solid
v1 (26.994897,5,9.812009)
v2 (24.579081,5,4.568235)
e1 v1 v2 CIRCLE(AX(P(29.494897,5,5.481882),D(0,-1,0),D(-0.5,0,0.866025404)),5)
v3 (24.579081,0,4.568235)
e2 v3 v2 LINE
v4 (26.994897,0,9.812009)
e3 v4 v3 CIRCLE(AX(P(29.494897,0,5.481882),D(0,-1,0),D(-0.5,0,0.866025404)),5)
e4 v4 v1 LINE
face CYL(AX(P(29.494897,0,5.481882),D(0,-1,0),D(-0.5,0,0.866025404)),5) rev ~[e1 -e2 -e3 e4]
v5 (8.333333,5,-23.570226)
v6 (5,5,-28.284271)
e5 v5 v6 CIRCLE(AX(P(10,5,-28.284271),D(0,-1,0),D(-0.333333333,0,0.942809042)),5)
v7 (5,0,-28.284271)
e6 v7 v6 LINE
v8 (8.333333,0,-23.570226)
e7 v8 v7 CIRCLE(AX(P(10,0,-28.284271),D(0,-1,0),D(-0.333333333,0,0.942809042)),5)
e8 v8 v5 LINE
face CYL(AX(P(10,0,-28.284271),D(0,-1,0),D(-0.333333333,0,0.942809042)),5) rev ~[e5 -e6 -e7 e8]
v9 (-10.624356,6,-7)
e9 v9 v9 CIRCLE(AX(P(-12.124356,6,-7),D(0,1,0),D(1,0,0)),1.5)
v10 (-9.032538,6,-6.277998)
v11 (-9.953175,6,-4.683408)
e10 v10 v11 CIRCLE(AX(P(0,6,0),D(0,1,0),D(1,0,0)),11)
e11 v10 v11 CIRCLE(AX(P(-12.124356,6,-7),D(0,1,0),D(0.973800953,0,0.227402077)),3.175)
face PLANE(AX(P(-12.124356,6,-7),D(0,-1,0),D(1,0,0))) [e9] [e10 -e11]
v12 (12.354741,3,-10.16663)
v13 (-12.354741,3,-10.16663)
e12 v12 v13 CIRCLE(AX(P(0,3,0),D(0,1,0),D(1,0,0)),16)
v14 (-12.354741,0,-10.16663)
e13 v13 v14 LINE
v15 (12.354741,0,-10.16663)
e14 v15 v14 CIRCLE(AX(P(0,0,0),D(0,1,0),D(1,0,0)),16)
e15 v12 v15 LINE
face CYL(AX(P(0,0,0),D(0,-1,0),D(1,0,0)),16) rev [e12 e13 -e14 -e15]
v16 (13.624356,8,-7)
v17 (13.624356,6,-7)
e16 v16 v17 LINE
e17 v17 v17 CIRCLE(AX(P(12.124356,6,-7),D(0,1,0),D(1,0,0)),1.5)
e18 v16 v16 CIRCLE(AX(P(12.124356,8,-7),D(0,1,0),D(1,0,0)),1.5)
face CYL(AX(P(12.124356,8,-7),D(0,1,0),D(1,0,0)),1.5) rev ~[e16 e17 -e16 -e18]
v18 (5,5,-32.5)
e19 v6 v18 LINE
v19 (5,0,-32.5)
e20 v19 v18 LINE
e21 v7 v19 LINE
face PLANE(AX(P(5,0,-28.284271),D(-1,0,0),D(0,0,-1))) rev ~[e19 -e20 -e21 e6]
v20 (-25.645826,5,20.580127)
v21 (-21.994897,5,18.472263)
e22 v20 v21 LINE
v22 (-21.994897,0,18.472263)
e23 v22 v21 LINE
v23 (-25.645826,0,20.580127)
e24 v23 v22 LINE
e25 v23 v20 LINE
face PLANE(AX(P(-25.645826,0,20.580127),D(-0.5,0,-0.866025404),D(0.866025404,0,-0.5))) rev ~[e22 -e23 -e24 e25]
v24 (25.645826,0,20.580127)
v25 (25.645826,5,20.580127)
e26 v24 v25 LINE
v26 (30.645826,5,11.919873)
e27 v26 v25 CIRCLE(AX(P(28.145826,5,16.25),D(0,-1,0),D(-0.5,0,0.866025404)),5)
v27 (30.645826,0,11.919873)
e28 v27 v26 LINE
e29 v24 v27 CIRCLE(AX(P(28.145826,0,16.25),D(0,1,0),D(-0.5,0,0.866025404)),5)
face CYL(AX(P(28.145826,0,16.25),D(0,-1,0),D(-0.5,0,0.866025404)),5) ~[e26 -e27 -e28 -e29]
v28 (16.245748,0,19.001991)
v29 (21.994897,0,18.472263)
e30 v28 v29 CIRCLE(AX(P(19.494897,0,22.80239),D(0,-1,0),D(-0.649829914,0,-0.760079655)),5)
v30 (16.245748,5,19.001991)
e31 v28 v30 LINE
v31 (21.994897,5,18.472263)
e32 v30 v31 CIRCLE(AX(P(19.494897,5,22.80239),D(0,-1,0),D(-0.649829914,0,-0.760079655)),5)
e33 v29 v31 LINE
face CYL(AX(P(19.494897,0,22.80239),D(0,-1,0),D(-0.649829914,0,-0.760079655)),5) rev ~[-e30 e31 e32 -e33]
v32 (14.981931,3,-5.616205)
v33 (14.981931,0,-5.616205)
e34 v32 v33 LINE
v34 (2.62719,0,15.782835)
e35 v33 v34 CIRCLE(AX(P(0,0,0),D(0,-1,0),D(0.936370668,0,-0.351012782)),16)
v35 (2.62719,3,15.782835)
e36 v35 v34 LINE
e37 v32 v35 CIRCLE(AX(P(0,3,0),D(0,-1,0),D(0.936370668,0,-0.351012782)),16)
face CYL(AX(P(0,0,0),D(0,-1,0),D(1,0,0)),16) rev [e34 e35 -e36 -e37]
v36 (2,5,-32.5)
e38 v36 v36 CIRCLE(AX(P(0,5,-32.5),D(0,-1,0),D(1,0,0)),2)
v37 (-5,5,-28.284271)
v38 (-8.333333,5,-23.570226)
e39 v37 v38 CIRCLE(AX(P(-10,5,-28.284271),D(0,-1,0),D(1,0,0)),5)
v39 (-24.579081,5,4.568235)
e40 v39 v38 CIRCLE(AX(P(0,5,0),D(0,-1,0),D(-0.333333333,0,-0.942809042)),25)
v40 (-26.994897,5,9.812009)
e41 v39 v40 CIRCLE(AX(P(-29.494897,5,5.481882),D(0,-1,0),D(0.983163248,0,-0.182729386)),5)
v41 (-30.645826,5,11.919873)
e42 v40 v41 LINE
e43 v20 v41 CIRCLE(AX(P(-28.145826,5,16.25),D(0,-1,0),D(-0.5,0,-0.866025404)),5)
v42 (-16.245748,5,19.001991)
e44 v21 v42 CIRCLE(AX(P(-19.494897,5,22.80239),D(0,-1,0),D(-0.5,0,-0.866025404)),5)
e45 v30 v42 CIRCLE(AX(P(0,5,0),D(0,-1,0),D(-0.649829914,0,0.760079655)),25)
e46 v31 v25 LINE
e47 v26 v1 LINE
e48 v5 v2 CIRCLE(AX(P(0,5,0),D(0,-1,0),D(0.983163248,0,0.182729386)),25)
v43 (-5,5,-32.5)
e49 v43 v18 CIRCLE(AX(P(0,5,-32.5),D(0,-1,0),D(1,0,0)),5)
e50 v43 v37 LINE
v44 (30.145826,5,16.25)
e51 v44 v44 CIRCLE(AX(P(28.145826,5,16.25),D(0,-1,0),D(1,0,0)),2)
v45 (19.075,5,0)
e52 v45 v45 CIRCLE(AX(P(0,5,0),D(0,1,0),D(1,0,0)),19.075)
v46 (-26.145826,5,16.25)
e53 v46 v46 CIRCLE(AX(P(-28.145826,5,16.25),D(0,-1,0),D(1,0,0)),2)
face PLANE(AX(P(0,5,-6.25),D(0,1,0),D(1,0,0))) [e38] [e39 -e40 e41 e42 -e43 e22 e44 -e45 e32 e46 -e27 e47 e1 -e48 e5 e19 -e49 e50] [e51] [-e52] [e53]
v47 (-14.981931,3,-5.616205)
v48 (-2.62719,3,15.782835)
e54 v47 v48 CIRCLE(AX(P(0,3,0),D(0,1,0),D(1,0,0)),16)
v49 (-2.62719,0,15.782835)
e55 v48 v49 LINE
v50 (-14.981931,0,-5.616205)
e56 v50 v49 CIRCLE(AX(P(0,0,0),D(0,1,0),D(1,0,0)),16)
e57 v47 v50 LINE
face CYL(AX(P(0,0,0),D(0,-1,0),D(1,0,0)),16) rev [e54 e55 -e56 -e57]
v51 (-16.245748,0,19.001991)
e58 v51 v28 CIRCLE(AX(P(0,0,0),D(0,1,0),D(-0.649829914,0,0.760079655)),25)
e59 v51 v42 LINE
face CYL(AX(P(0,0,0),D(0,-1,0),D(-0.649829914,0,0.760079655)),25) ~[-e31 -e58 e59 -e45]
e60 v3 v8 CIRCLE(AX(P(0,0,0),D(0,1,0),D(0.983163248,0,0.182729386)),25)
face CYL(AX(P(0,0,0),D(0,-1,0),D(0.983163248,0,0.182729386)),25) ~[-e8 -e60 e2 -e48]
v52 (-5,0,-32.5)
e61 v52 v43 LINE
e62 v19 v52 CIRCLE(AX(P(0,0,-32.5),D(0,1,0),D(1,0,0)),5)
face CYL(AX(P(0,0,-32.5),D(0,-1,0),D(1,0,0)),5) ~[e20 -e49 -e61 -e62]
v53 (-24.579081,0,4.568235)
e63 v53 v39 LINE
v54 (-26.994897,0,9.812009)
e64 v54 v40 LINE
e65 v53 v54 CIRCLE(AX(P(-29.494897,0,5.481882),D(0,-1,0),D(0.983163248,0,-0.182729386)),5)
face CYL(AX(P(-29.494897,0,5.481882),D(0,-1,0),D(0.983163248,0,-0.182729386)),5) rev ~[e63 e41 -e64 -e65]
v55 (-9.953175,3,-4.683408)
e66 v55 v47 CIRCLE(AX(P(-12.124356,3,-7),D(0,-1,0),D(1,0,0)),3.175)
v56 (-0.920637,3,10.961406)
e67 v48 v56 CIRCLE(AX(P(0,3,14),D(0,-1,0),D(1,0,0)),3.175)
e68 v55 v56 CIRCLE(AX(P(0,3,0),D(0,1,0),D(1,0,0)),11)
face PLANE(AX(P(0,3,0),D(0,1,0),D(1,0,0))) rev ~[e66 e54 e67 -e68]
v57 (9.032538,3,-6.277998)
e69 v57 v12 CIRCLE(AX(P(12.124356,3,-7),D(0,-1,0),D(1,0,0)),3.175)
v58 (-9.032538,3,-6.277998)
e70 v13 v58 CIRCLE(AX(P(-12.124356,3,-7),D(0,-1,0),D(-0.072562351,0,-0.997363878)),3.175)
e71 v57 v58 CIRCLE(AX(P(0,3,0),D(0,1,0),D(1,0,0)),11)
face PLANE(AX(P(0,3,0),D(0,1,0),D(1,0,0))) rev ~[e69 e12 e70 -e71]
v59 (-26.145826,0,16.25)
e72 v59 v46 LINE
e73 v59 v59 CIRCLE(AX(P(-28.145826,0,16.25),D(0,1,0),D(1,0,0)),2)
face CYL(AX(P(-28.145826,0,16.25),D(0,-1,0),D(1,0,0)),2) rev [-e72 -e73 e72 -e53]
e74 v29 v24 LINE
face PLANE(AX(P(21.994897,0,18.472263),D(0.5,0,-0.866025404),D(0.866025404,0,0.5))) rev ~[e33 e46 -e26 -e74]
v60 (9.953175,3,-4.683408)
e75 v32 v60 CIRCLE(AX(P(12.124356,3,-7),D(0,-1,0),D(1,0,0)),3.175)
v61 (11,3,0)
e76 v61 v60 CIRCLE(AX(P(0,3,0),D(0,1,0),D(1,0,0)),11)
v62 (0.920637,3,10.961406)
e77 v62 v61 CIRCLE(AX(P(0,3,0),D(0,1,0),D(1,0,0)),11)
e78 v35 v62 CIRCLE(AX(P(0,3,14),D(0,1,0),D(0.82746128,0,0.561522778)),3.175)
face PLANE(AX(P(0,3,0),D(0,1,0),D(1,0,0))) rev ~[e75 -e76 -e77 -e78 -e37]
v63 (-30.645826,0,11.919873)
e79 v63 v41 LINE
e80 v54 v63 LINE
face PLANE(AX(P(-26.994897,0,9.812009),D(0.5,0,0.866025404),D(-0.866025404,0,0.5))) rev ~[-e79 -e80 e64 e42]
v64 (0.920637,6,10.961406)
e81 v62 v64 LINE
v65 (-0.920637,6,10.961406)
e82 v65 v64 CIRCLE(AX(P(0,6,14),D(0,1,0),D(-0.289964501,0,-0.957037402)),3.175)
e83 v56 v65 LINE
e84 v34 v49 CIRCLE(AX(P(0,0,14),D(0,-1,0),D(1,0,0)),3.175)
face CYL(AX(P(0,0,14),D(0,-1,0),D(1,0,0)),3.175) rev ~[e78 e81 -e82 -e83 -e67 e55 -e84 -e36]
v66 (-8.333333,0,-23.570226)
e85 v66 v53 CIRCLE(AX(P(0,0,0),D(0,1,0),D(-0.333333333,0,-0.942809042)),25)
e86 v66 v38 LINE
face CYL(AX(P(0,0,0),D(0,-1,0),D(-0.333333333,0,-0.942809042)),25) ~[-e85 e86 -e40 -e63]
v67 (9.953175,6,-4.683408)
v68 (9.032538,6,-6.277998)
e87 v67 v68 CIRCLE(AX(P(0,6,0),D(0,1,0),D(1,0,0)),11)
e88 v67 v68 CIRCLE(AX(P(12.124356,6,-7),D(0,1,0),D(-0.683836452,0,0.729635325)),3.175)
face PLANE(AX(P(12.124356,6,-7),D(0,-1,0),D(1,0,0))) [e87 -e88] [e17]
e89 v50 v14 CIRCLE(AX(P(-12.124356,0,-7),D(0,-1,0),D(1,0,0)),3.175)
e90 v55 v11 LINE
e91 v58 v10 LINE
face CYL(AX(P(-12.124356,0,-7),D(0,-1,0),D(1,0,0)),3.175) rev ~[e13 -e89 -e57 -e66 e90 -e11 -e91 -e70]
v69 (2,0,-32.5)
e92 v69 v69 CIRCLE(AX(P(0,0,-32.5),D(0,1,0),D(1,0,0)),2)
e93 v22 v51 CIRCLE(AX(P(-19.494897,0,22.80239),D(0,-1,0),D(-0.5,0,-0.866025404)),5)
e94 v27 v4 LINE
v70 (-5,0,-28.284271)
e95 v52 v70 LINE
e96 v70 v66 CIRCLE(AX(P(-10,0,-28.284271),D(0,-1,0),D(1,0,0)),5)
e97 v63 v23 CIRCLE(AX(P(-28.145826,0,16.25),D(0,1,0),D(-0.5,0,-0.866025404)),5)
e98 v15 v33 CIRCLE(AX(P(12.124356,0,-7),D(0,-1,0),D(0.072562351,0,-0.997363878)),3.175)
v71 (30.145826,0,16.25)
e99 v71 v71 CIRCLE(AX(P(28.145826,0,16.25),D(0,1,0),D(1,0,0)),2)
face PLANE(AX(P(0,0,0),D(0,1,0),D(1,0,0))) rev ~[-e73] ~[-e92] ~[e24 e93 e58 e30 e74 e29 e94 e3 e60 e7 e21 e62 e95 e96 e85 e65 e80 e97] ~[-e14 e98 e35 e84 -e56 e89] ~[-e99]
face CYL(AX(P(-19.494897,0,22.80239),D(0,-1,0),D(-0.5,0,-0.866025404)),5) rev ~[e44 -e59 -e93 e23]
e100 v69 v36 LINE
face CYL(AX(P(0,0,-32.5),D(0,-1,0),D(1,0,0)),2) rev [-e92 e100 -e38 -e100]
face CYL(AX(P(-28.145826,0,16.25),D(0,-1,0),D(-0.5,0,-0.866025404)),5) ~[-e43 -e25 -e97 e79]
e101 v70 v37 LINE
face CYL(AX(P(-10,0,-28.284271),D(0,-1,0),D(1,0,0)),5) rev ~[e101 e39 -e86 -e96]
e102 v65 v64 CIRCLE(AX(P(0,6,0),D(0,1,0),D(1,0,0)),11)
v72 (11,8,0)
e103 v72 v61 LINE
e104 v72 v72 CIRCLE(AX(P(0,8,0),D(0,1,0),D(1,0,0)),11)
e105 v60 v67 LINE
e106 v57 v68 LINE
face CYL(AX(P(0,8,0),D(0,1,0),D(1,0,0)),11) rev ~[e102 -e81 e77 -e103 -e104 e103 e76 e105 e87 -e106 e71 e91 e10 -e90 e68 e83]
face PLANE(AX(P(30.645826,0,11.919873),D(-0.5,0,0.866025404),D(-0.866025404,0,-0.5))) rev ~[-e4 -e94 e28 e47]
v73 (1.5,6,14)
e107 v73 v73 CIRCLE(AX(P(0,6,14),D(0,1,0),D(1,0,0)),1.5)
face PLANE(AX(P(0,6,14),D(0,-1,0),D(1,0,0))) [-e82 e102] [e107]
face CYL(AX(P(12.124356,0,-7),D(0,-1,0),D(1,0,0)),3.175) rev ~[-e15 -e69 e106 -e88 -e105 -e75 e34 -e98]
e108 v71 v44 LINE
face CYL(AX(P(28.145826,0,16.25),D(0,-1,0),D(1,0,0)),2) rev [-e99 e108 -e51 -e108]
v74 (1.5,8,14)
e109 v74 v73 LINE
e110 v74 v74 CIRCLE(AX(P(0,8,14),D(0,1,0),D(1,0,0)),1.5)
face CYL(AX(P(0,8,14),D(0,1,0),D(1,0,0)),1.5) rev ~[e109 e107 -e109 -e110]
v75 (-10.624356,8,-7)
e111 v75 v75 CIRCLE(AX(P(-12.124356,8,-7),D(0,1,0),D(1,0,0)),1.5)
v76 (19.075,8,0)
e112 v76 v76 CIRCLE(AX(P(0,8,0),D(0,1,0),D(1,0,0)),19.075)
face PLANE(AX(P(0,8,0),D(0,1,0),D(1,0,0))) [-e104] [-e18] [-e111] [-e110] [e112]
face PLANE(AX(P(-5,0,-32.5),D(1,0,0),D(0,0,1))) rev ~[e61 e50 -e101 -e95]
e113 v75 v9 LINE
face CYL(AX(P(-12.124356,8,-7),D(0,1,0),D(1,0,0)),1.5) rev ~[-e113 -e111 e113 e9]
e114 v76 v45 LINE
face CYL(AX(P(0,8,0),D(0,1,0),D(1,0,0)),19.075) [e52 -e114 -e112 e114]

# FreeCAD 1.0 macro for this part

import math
import FreeCAD as App
import Part
import Sketcher
Q = App.Units.Quantity


def add_polygon(sketch, points):
    """Adds a closed chain of lines whose ends are joined by coincident constraints."""
    first, n = sketch.GeometryCount, len(points)
    for a, b in zip(points, points[1:] + points[:1]):
        sketch.addGeometry(Part.LineSegment(App.Vector(*a, 0), App.Vector(*b, 0)), False)
    for i in range(n):
        sketch.addConstraint(Sketcher.Constraint("Coincident", first + i, 2, first + (i + 1) % n, 1))

doc = App.newDocument("Part")
body = doc.addObject("PartDesign::Body", "Body")

# Sketch on XZ plane
sketch1 = doc.addObject("Sketcher::SketchObject", "Sketch")
body.addObject(sketch1)
sketch1.AttachmentSupport = (doc.XZ_Plane, [""])
sketch1.MapMode = "FlatFace"
sketch1.addGeometry(Part.LineSegment(App.Vector(30.6, 11.9, 0), App.Vector(27, 9.8, 0)), False)
sketch1.addGeometry(Part.ArcOfCircle(Part.Circle(App.Vector(29.5, 5.5, 0), App.Vector(0, 0, 1), 5), math.radians(120), math.radians(191)), False)
sketch1.addGeometry(Part.ArcOfCircle(Part.Circle(App.Vector(0, 0, 0), App.Vector(0, 0, 1), 25), math.radians(-71), math.radians(11)), False)
sketch1.addGeometry(Part.ArcOfCircle(Part.Circle(App.Vector(10, -28.3, 0), App.Vector(0, 0, 1), 5), math.radians(109), math.radians(180)), False)
sketch1.addGeometry(Part.LineSegment(App.Vector(5, -28.3, 0), App.Vector(5, -32.5, 0)), False)
sketch1.addGeometry(Part.ArcOfCircle(Part.Circle(App.Vector(0, -32.5, 0), App.Vector(0, 0, 1), 5), math.radians(180), math.radians(360)), False)
sketch1.addGeometry(Part.LineSegment(App.Vector(-5, -32.5, 0), App.Vector(-5, -28.3, 0)), False)
sketch1.addGeometry(Part.ArcOfCircle(Part.Circle(App.Vector(-10, -28.3, 0), App.Vector(0, 0, 1), 5), math.radians(0), math.radians(71)), False)
sketch1.addGeometry(Part.ArcOfCircle(Part.Circle(App.Vector(0, 0, 0), App.Vector(0, 0, 1), 25), math.radians(169), math.radians(251)), False)
sketch1.addGeometry(Part.ArcOfCircle(Part.Circle(App.Vector(-29.5, 5.5, 0), App.Vector(0, 0, 1), 5), math.radians(-11), math.radians(60)), False)
sketch1.addGeometry(Part.LineSegment(App.Vector(-27, 9.8, 0), App.Vector(-30.6, 11.9, 0)), False)
sketch1.addGeometry(Part.ArcOfCircle(Part.Circle(App.Vector(-28.1, 16.2, 0), App.Vector(0, 0, 1), 5), math.radians(60), math.radians(240)), False)
sketch1.addGeometry(Part.LineSegment(App.Vector(-25.6, 20.6, 0), App.Vector(-22, 18.5, 0)), False)
sketch1.addGeometry(Part.ArcOfCircle(Part.Circle(App.Vector(-19.5, 22.8, 0), App.Vector(0, 0, 1), 5), math.radians(-120), math.radians(-49)), False)
sketch1.addGeometry(Part.ArcOfCircle(Part.Circle(App.Vector(0, 0, 0), App.Vector(0, 0, 1), 25), math.radians(49), math.radians(131)), False)
sketch1.addGeometry(Part.ArcOfCircle(Part.Circle(App.Vector(19.5, 22.8, 0), App.Vector(0, 0, 1), 5), math.radians(-131), math.radians(-60)), False)
sketch1.addGeometry(Part.LineSegment(App.Vector(22, 18.5, 0), App.Vector(25.6, 20.6, 0)), False)
sketch1.addGeometry(Part.ArcOfCircle(Part.Circle(App.Vector(28.1, 16.2, 0), App.Vector(0, 0, 1), 5), math.radians(-60), math.radians(120)), False)
sketch1.addGeometry(Part.Circle(App.Vector(-28.1, 16.2, 0), App.Vector(0, 0, 1), 2), False)
sketch1.addGeometry(Part.Circle(App.Vector(28.1, 16.2, 0), App.Vector(0, 0, 1), 2), False)
sketch1.addGeometry(Part.Circle(App.Vector(0, 0, 0), App.Vector(0, 0, 1), 16), False)
sketch1.addGeometry(Part.Circle(App.Vector(0, -32.5, 0), App.Vector(0, 0, 1), 2), False)
sketch1.addConstraint(Sketcher.Constraint("Tangent", 0, 2, 1, 1))
sketch1.addConstraint(Sketcher.Constraint("Tangent", 1, 2, 2, 2))
sketch1.addConstraint(Sketcher.Constraint("Tangent", 2, 1, 3, 1))
sketch1.addConstraint(Sketcher.Constraint("Tangent", 3, 2, 4, 1))
sketch1.addConstraint(Sketcher.Constraint("Tangent", 4, 2, 5, 2))
sketch1.addConstraint(Sketcher.Constraint("Tangent", 5, 1, 6, 1))
sketch1.addConstraint(Sketcher.Constraint("Tangent", 6, 2, 7, 1))
sketch1.addConstraint(Sketcher.Constraint("Tangent", 7, 2, 8, 2))
sketch1.addConstraint(Sketcher.Constraint("Tangent", 8, 1, 9, 1))
sketch1.addConstraint(Sketcher.Constraint("Tangent", 9, 2, 10, 1))
sketch1.addConstraint(Sketcher.Constraint("Tangent", 10, 2, 11, 2))
sketch1.addConstraint(Sketcher.Constraint("Tangent", 11, 1, 12, 1))
sketch1.addConstraint(Sketcher.Constraint("Tangent", 12, 2, 13, 1))
sketch1.addConstraint(Sketcher.Constraint("Tangent", 13, 2, 14, 2))
sketch1.addConstraint(Sketcher.Constraint("Tangent", 14, 1, 15, 1))
sketch1.addConstraint(Sketcher.Constraint("Tangent", 15, 2, 16, 1))
sketch1.addConstraint(Sketcher.Constraint("Tangent", 16, 2, 17, 2))
sketch1.addConstraint(Sketcher.Constraint("Tangent", 17, 1, 0, 1))
sketch1.addConstraint(Sketcher.Constraint("Vertical", 4))
sketch1.addConstraint(Sketcher.Constraint("Vertical", 6))
sketch1.addConstraint(Sketcher.Constraint("Coincident", 2, 3, -1, 1))
sketch1.addConstraint(Sketcher.Constraint("Coincident", 8, 3, -1, 1))
sketch1.addConstraint(Sketcher.Constraint("Coincident", 14, 3, -1, 1))
sketch1.addConstraint(Sketcher.Constraint("Coincident", 20, 3, -1, 1))
sketch1.addConstraint(Sketcher.Constraint("Coincident", 18, 3, 11, 3))
sketch1.addConstraint(Sketcher.Constraint("Coincident", 19, 3, 17, 3))
sketch1.addConstraint(Sketcher.Constraint("Coincident", 21, 3, 5, 3))
sketch1.addConstraint(Sketcher.Constraint("Equal", 1, 3))
sketch1.addConstraint(Sketcher.Constraint("Equal", 3, 5))
sketch1.addConstraint(Sketcher.Constraint("Equal", 5, 7))
sketch1.addConstraint(Sketcher.Constraint("Equal", 2, 8))
sketch1.addConstraint(Sketcher.Constraint("Equal", 7, 9))
sketch1.addConstraint(Sketcher.Constraint("Equal", 9, 11))
sketch1.addConstraint(Sketcher.Constraint("Equal", 11, 13))
sketch1.addConstraint(Sketcher.Constraint("Equal", 8, 14))
sketch1.addConstraint(Sketcher.Constraint("Equal", 13, 15))
sketch1.addConstraint(Sketcher.Constraint("Equal", 15, 17))
sketch1.addConstraint(Sketcher.Constraint("Equal", 18, 19))
sketch1.addConstraint(Sketcher.Constraint("Equal", 19, 21))
sketch1.addConstraint(Sketcher.Constraint("Symmetric", 11, 3, 17, 3, -2))
sketch1.addConstraint(Sketcher.Constraint("PointOnObject", 5, 3, -2))
sketch1.addConstraint(Sketcher.Constraint("Parallel", 10, 12))
sketch1.addConstraint(Sketcher.Constraint("Parallel", 0, 16))
sketch1.addConstraint(Sketcher.Constraint("Horizontal", 1, 3, 9, 3))
sketch1.addConstraint(Sketcher.Constraint("Equal", 10, 12))
sketch1.addConstraint(Sketcher.Constraint("Diameter", 18, 4.0))
sketch1.addConstraint(Sketcher.Constraint("Diameter", 20, 32.0))
sketch1.addConstraint(Sketcher.Constraint("Radius", 1, 5.0))
sketch1.addConstraint(Sketcher.Constraint("Radius", 2, 25.0))
sketch1.addConstraint(Sketcher.Constraint("Angle", 0, Q("-150 deg")))
sketch1.addConstraint(Sketcher.Constraint("DistanceY", 5, 3, -1, 1, 32.5))
sketch1.addConstraint(Sketcher.Constraint("DistanceY", -1, 1, 11, 3, 16.25))
pad1 = doc.addObject("PartDesign::Pad", "Pad")
body.addObject(pad1)
pad1.Profile = sketch1
pad1.Length = 8
pad1.Reversed = True

# Sketch on XZ plane
sketch2 = doc.addObject("Sketcher::SketchObject", "Sketch001")
body.addObject(sketch2)
sketch2.AttachmentSupport = (doc.XZ_Plane, [""])
sketch2.MapMode = "FlatFace"
sketch2.AttachmentOffset = App.Placement(App.Vector(0, 0, -8), App.Rotation())
sketch2.addGeometry(Part.Circle(App.Vector(0, 0, 0), App.Vector(0, 0, 1), 16), False)
sketch2.addGeometry(Part.Circle(App.Vector(0, 0, 0), App.Vector(0, 0, 1), 11), False)
sketch2.addConstraint(Sketcher.Constraint("Coincident", 0, 3, -1, 1))
sketch2.addConstraint(Sketcher.Constraint("Coincident", 1, 3, -1, 1))
sketch2.addConstraint(Sketcher.Constraint("Diameter", 0, 32.0))
sketch2.addConstraint(Sketcher.Constraint("Diameter", 1, 22.0))
pad2 = doc.addObject("PartDesign::Pad", "Pad001")
body.addObject(pad2)
pad2.Profile = sketch2
pad2.Length = 5

# Sketch on XZ plane
sketch3 = doc.addObject("Sketcher::SketchObject", "Sketch002")
body.addObject(sketch3)
sketch3.AttachmentSupport = (doc.XZ_Plane, [""])
sketch3.MapMode = "FlatFace"
sketch3.AttachmentOffset = App.Placement(App.Vector(0, 0, -8), App.Rotation())
sketch3.addGeometry(Part.Circle(App.Vector(0, 14, 0), App.Vector(0, 0, 1), 1.5), False)
sketch3.addGeometry(Part.Circle(App.Vector(-12.1, -7, 0), App.Vector(0, 0, 1), 1.5), False)
sketch3.addGeometry(Part.Circle(App.Vector(12.1, -7, 0), App.Vector(0, 0, 1), 1.5), False)
sketch3.addConstraint(Sketcher.Constraint("Equal", 0, 1))
sketch3.addConstraint(Sketcher.Constraint("Equal", 1, 2))
sketch3.addConstraint(Sketcher.Constraint("Symmetric", 1, 3, 2, 3, -2))
sketch3.addConstraint(Sketcher.Constraint("PointOnObject", 0, 3, -2))
sketch3.addConstraint(Sketcher.Constraint("Diameter", 0, 3.0))
sketch3.addConstraint(Sketcher.Constraint("DistanceY", -1, 1, 0, 3, 14.0))
sketch3.addConstraint(Sketcher.Constraint("DistanceY", 1, 3, -1, 1, 7.0))
sketch3.addConstraint(Sketcher.Constraint("DistanceX", 1, 3, 2, 3, 24.248711))
pocket1 = doc.addObject("PartDesign::Pocket", "Pocket")
body.addObject(pocket1)
pocket1.Profile = sketch3
pocket1.Type = "ThroughAll"
pocket1.Reversed = True

# Sketch on XZ plane
sketch4 = doc.addObject("Sketcher::SketchObject", "Sketch003")
body.addObject(sketch4)
sketch4.AttachmentSupport = (doc.XZ_Plane, [""])
sketch4.MapMode = "FlatFace"
sketch4.addGeometry(Part.Circle(App.Vector(0, 14, 0), App.Vector(0, 0, 1), 3.2), False)
sketch4.addGeometry(Part.Circle(App.Vector(-12.1, -7, 0), App.Vector(0, 0, 1), 3.2), False)
sketch4.addGeometry(Part.Circle(App.Vector(12.1, -7, 0), App.Vector(0, 0, 1), 3.2), False)
sketch4.addConstraint(Sketcher.Constraint("Equal", 0, 1))
sketch4.addConstraint(Sketcher.Constraint("Equal", 1, 2))
sketch4.addConstraint(Sketcher.Constraint("Symmetric", 1, 3, 2, 3, -2))
sketch4.addConstraint(Sketcher.Constraint("PointOnObject", 0, 3, -2))
sketch4.addConstraint(Sketcher.Constraint("Diameter", 0, 6.35))
sketch4.addConstraint(Sketcher.Constraint("DistanceY", -1, 1, 0, 3, 14.0))
sketch4.addConstraint(Sketcher.Constraint("DistanceY", 1, 3, -1, 1, 7.0))
sketch4.addConstraint(Sketcher.Constraint("DistanceX", 1, 3, 2, 3, 24.248711))
pocket2 = doc.addObject("PartDesign::Pocket", "Pocket001")
body.addObject(pocket2)
pocket2.Profile = sketch4
pocket2.Length = 6

# Sketch on XZ plane
sketch5 = doc.addObject("Sketcher::SketchObject", "Sketch004")
body.addObject(sketch5)
sketch5.AttachmentSupport = (doc.XZ_Plane, [""])
sketch5.MapMode = "FlatFace"
sketch5.AttachmentOffset = App.Placement(App.Vector(0, 0, -8), App.Rotation())
add_polygon(sketch5, [(-43, -48), (-43, 35), (43, 35), (43, -48)])  # lines 0-3
sketch5.addGeometry(Part.Circle(App.Vector(0, 0, 0), App.Vector(0, 0, 1), 19), False)  # 4
sketch5.addConstraint(Sketcher.Constraint("Vertical", 0))
sketch5.addConstraint(Sketcher.Constraint("Horizontal", 1))
sketch5.addConstraint(Sketcher.Constraint("Vertical", 2))
sketch5.addConstraint(Sketcher.Constraint("Horizontal", 3))
sketch5.addConstraint(Sketcher.Constraint("Coincident", 4, 3, -1, 1))
sketch5.addConstraint(Sketcher.Constraint("Diameter", 4, 38.15))
sketch5.addConstraint(Sketcher.Constraint("DistanceX", 1, 1, 1, 2, 86.584))
sketch5.addConstraint(Sketcher.Constraint("DistanceY", 0, 1, 0, 2, 82.792))
sketch5.addConstraint(Sketcher.Constraint("DistanceX", 0, 2, -1, 1, 43.292))
sketch5.addConstraint(Sketcher.Constraint("DistanceY", -1, 1, 0, 2, 35.146))
pocket3 = doc.addObject("PartDesign::Pocket", "Pocket002")
body.addObject(pocket3)
pocket3.Profile = sketch5
pocket3.Length = 3
pocket3.Reversed = True

doc.recompute()
